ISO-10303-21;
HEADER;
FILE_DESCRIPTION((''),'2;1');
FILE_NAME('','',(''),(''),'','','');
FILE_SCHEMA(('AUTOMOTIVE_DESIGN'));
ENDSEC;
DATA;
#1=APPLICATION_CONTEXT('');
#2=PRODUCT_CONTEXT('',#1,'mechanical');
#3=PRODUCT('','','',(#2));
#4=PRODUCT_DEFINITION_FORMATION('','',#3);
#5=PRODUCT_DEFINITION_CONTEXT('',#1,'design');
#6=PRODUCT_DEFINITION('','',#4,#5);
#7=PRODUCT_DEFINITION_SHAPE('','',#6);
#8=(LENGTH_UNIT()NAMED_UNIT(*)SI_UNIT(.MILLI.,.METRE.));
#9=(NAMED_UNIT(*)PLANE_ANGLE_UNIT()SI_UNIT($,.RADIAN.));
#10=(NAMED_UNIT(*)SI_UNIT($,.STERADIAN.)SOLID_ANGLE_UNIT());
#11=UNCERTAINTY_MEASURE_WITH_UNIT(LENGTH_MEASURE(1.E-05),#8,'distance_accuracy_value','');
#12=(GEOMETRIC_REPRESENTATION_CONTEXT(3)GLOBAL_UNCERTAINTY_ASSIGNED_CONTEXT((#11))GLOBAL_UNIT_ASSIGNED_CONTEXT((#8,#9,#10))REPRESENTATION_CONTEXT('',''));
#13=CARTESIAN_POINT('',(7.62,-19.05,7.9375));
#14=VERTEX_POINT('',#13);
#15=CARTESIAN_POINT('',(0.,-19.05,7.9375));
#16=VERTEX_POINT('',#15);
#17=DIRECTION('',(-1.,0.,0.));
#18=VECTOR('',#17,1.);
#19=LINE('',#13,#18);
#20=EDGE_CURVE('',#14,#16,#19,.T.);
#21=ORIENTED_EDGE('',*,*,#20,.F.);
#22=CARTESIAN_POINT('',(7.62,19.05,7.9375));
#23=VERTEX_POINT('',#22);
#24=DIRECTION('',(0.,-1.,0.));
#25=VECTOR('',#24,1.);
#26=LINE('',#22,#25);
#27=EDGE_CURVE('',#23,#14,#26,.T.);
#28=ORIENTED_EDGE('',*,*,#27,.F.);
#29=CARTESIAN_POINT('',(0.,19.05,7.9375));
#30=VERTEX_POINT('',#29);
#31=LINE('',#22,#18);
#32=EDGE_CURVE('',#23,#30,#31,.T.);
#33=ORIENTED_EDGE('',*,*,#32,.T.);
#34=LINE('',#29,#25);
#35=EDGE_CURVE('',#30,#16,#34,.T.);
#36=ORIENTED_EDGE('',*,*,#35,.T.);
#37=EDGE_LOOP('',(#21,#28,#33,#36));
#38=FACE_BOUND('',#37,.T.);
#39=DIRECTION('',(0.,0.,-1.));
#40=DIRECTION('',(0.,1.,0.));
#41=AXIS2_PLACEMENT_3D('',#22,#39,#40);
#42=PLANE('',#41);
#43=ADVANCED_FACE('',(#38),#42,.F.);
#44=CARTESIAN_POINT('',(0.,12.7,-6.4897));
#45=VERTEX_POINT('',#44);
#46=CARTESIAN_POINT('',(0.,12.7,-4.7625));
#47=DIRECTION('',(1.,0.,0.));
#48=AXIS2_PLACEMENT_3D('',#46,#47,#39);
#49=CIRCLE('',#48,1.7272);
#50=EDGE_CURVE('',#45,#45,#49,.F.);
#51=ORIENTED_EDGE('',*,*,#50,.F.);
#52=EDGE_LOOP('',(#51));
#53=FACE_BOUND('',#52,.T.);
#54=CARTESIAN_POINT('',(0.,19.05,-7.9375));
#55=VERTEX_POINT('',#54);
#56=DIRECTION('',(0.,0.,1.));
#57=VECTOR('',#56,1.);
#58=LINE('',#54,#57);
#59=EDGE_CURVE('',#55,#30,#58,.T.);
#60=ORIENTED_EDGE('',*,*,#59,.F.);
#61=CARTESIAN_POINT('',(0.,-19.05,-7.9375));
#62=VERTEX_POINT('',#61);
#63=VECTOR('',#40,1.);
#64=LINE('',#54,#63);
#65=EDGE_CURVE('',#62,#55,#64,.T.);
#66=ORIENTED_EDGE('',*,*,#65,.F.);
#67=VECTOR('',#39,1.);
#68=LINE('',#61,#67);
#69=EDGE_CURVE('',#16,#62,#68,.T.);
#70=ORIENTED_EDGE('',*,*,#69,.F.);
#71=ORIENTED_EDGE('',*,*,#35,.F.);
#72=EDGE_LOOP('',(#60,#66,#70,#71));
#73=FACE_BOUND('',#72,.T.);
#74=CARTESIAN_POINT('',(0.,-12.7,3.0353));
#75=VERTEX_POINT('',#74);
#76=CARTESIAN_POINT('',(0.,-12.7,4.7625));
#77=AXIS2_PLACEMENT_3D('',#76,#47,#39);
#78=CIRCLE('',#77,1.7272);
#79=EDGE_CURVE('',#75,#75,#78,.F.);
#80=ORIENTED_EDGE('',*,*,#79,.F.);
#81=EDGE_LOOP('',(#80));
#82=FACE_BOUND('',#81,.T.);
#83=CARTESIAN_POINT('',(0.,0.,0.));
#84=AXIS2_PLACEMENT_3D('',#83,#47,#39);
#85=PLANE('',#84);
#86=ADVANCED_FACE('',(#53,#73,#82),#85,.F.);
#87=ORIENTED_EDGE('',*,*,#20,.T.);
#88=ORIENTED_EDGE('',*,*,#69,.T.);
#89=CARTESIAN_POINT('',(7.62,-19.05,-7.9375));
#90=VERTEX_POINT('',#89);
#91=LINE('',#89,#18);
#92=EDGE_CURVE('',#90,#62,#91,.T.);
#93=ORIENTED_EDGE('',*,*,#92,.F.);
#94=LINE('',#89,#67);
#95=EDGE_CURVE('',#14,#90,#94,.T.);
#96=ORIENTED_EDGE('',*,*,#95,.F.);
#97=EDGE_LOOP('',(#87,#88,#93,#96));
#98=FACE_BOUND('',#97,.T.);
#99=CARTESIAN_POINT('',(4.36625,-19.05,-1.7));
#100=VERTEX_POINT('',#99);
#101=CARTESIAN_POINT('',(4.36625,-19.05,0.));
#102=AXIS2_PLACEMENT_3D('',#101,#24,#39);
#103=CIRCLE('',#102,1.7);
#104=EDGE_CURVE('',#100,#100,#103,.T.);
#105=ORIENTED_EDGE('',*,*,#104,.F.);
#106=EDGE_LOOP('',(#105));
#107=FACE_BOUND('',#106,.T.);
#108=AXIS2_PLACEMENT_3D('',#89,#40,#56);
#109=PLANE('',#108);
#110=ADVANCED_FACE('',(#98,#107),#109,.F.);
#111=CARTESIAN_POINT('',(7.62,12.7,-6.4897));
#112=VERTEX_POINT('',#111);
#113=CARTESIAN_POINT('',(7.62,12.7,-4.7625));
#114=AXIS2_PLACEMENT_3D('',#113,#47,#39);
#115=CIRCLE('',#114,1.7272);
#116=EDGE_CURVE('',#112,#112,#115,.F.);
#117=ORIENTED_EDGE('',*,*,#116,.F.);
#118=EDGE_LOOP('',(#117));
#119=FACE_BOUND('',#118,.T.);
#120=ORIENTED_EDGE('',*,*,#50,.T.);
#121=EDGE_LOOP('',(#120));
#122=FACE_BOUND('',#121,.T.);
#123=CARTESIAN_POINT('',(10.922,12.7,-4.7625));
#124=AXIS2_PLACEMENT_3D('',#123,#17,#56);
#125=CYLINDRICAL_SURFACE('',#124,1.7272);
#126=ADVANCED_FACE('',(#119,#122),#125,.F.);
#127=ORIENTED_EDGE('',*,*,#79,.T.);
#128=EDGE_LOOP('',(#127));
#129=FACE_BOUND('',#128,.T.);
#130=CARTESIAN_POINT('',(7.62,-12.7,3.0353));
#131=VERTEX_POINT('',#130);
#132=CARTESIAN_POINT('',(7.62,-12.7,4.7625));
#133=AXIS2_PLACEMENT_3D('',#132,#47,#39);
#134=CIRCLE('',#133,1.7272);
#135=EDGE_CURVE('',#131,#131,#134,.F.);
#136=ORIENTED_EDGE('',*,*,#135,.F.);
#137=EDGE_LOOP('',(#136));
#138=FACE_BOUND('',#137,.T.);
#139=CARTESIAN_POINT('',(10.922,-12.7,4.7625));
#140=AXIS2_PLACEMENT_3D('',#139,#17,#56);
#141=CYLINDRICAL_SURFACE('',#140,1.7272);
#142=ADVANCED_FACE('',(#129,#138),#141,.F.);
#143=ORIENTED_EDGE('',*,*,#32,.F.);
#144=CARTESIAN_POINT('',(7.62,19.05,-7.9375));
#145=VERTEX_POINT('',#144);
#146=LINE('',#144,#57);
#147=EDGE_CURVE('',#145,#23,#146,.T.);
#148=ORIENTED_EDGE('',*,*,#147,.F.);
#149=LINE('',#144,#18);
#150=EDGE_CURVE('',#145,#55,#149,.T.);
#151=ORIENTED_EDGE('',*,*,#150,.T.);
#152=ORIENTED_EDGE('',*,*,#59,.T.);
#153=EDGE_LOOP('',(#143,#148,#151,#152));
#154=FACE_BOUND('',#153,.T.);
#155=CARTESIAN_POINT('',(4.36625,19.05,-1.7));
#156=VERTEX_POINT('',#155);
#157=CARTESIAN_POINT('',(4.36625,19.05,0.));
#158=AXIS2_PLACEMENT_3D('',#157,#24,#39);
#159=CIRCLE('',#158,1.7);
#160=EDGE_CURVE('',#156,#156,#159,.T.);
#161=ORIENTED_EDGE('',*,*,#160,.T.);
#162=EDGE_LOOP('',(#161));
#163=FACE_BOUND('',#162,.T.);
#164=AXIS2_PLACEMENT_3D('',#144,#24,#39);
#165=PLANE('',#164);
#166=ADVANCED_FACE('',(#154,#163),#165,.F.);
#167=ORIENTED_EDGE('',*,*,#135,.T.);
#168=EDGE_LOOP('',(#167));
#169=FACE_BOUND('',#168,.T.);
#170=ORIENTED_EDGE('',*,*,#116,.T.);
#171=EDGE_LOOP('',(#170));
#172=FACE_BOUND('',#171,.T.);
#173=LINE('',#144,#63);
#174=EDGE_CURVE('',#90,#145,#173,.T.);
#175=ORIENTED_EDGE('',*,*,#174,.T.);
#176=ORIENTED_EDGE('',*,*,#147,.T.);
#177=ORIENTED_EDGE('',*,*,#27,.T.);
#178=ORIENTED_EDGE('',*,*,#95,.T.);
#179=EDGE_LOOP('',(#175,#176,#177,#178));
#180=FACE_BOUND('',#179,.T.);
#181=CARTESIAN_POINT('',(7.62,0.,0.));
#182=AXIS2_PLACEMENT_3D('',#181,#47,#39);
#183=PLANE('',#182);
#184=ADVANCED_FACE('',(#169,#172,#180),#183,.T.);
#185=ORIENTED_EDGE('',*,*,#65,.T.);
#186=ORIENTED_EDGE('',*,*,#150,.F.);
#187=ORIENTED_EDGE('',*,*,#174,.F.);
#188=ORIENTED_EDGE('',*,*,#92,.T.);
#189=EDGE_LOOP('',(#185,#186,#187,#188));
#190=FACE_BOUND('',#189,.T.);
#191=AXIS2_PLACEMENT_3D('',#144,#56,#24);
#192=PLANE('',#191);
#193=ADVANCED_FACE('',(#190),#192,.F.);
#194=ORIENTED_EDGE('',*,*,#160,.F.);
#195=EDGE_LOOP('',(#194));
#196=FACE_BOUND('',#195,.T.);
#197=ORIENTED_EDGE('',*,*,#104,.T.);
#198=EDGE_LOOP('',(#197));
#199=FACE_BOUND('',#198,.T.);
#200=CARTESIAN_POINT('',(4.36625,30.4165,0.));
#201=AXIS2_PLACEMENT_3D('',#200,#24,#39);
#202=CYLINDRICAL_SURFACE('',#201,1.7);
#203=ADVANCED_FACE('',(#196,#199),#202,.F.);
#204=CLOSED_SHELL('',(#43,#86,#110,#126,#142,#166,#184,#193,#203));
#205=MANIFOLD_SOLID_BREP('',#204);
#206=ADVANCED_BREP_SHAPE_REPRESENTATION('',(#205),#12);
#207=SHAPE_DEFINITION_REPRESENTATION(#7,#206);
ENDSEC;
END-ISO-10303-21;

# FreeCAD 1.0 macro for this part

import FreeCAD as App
import Part
import Sketcher
from FreeCAD import Vector
Q = App.Units.Quantity


def add_polygon(sketch, points):
    """Adds a closed chain of lines whose ends are joined by coincident constraints."""
    first, n = sketch.GeometryCount, len(points)
    for a, b in zip(points, points[1:] + points[:1]):
        sketch.addGeometry(Part.LineSegment(App.Vector(*a, 0), App.Vector(*b, 0)), False)
    for i in range(n):
        sketch.addConstraint(Sketcher.Constraint("Coincident", first + i, 2, first + (i + 1) % n, 1))

doc = App.newDocument("Part")
body = doc.addObject("PartDesign::Body", "Body")

# Sketch on YZ plane
sketch1 = doc.addObject("Sketcher::SketchObject", "Sketch")
body.addObject(sketch1)
sketch1.AttachmentSupport = (doc.YZ_Plane, [""])
sketch1.MapMode = "FlatFace"
add_polygon(sketch1, [(-19, 8), (-19, -8), (19, -8), (19, 8)])  # lines 0-3
sketch1.addConstraint([
    Sketcher.Constraint("Vertical", 0),
    Sketcher.Constraint("Horizontal", 1),
    Sketcher.Constraint("Vertical", 2),
    Sketcher.Constraint("Horizontal", 3),
    Sketcher.Constraint("Symmetric", 0, 2, 2, 2, -1, 1),
    Sketcher.Constraint("DistanceX", 1, 1, 1, 2, Q("1.5 in")),
    Sketcher.Constraint("DistanceY", 0, 2, 0, 1, Q("0.625 in")),
])
pad1 = doc.addObject("PartDesign::Pad", "Pad")
body.addObject(pad1)
pad1.Profile = sketch1
pad1.Length = Q("0.3 in")

# Sketch on XZ plane
sketch2 = doc.addObject("Sketcher::SketchObject", "Sketch001")
body.addObject(sketch2)
sketch2.AttachmentSupport = (doc.XZ_Plane, [""])
sketch2.MapMode = "FlatFace"
sketch2.AttachmentOffset = App.Placement(Vector(0, 0, 0.75 * 25.4), App.Rotation())
sketch2.addGeometry(Part.Circle(Vector(4.4, 0, 0), Vector(0, 0, 1), 1.7), False)
sketch2.addConstraint([
    Sketcher.Constraint("PointOnObject", 0, 3, -1),
    Sketcher.Constraint("Diameter", 0, Q("3.4 mm")),
    Sketcher.Constraint("DistanceX", -1, 1, 0, 3, Q("4.36625 mm")),
])
pocket1 = doc.addObject("PartDesign::Pocket", "Pocket")
body.addObject(pocket1)
pocket1.Profile = sketch2
pocket1.Length = Q("1.9475 in")

# Sketch on YZ plane
sketch3 = doc.addObject("Sketcher::SketchObject", "Sketch002")
body.addObject(sketch3)
sketch3.AttachmentSupport = (doc.YZ_Plane, [""])
sketch3.MapMode = "FlatFace"
sketch3.AttachmentOffset = App.Placement(Vector(0, 0, 0.3 * 25.4), App.Rotation())
sketch3.addGeometry([
    Part.Circle(Vector(-12.7, 4.8, 0), Vector(0, 0, 1), 1.7),
    Part.Circle(Vector(12.7, -4.8, 0), Vector(0, 0, 1), 1.7),
], False)
sketch3.addConstraint([
    Sketcher.Constraint("Equal", 0, 1),
    Sketcher.Constraint("Symmetric", 0, 3, 1, 3, -1, 1),
    Sketcher.Constraint("Diameter", 0, Q("0.136 in")),
    Sketcher.Constraint("DistanceX", 0, 3, 1, 3, Q("1 in")),
    Sketcher.Constraint("DistanceY", -1, 1, 0, 3, Q("0.1875 in")),
])
pocket2 = doc.addObject("PartDesign::Pocket", "Pocket001")
body.addObject(pocket2)
pocket2.Profile = sketch3
pocket2.Type = "ThroughAll"
pocket2.Midplane = True

doc.recompute()
